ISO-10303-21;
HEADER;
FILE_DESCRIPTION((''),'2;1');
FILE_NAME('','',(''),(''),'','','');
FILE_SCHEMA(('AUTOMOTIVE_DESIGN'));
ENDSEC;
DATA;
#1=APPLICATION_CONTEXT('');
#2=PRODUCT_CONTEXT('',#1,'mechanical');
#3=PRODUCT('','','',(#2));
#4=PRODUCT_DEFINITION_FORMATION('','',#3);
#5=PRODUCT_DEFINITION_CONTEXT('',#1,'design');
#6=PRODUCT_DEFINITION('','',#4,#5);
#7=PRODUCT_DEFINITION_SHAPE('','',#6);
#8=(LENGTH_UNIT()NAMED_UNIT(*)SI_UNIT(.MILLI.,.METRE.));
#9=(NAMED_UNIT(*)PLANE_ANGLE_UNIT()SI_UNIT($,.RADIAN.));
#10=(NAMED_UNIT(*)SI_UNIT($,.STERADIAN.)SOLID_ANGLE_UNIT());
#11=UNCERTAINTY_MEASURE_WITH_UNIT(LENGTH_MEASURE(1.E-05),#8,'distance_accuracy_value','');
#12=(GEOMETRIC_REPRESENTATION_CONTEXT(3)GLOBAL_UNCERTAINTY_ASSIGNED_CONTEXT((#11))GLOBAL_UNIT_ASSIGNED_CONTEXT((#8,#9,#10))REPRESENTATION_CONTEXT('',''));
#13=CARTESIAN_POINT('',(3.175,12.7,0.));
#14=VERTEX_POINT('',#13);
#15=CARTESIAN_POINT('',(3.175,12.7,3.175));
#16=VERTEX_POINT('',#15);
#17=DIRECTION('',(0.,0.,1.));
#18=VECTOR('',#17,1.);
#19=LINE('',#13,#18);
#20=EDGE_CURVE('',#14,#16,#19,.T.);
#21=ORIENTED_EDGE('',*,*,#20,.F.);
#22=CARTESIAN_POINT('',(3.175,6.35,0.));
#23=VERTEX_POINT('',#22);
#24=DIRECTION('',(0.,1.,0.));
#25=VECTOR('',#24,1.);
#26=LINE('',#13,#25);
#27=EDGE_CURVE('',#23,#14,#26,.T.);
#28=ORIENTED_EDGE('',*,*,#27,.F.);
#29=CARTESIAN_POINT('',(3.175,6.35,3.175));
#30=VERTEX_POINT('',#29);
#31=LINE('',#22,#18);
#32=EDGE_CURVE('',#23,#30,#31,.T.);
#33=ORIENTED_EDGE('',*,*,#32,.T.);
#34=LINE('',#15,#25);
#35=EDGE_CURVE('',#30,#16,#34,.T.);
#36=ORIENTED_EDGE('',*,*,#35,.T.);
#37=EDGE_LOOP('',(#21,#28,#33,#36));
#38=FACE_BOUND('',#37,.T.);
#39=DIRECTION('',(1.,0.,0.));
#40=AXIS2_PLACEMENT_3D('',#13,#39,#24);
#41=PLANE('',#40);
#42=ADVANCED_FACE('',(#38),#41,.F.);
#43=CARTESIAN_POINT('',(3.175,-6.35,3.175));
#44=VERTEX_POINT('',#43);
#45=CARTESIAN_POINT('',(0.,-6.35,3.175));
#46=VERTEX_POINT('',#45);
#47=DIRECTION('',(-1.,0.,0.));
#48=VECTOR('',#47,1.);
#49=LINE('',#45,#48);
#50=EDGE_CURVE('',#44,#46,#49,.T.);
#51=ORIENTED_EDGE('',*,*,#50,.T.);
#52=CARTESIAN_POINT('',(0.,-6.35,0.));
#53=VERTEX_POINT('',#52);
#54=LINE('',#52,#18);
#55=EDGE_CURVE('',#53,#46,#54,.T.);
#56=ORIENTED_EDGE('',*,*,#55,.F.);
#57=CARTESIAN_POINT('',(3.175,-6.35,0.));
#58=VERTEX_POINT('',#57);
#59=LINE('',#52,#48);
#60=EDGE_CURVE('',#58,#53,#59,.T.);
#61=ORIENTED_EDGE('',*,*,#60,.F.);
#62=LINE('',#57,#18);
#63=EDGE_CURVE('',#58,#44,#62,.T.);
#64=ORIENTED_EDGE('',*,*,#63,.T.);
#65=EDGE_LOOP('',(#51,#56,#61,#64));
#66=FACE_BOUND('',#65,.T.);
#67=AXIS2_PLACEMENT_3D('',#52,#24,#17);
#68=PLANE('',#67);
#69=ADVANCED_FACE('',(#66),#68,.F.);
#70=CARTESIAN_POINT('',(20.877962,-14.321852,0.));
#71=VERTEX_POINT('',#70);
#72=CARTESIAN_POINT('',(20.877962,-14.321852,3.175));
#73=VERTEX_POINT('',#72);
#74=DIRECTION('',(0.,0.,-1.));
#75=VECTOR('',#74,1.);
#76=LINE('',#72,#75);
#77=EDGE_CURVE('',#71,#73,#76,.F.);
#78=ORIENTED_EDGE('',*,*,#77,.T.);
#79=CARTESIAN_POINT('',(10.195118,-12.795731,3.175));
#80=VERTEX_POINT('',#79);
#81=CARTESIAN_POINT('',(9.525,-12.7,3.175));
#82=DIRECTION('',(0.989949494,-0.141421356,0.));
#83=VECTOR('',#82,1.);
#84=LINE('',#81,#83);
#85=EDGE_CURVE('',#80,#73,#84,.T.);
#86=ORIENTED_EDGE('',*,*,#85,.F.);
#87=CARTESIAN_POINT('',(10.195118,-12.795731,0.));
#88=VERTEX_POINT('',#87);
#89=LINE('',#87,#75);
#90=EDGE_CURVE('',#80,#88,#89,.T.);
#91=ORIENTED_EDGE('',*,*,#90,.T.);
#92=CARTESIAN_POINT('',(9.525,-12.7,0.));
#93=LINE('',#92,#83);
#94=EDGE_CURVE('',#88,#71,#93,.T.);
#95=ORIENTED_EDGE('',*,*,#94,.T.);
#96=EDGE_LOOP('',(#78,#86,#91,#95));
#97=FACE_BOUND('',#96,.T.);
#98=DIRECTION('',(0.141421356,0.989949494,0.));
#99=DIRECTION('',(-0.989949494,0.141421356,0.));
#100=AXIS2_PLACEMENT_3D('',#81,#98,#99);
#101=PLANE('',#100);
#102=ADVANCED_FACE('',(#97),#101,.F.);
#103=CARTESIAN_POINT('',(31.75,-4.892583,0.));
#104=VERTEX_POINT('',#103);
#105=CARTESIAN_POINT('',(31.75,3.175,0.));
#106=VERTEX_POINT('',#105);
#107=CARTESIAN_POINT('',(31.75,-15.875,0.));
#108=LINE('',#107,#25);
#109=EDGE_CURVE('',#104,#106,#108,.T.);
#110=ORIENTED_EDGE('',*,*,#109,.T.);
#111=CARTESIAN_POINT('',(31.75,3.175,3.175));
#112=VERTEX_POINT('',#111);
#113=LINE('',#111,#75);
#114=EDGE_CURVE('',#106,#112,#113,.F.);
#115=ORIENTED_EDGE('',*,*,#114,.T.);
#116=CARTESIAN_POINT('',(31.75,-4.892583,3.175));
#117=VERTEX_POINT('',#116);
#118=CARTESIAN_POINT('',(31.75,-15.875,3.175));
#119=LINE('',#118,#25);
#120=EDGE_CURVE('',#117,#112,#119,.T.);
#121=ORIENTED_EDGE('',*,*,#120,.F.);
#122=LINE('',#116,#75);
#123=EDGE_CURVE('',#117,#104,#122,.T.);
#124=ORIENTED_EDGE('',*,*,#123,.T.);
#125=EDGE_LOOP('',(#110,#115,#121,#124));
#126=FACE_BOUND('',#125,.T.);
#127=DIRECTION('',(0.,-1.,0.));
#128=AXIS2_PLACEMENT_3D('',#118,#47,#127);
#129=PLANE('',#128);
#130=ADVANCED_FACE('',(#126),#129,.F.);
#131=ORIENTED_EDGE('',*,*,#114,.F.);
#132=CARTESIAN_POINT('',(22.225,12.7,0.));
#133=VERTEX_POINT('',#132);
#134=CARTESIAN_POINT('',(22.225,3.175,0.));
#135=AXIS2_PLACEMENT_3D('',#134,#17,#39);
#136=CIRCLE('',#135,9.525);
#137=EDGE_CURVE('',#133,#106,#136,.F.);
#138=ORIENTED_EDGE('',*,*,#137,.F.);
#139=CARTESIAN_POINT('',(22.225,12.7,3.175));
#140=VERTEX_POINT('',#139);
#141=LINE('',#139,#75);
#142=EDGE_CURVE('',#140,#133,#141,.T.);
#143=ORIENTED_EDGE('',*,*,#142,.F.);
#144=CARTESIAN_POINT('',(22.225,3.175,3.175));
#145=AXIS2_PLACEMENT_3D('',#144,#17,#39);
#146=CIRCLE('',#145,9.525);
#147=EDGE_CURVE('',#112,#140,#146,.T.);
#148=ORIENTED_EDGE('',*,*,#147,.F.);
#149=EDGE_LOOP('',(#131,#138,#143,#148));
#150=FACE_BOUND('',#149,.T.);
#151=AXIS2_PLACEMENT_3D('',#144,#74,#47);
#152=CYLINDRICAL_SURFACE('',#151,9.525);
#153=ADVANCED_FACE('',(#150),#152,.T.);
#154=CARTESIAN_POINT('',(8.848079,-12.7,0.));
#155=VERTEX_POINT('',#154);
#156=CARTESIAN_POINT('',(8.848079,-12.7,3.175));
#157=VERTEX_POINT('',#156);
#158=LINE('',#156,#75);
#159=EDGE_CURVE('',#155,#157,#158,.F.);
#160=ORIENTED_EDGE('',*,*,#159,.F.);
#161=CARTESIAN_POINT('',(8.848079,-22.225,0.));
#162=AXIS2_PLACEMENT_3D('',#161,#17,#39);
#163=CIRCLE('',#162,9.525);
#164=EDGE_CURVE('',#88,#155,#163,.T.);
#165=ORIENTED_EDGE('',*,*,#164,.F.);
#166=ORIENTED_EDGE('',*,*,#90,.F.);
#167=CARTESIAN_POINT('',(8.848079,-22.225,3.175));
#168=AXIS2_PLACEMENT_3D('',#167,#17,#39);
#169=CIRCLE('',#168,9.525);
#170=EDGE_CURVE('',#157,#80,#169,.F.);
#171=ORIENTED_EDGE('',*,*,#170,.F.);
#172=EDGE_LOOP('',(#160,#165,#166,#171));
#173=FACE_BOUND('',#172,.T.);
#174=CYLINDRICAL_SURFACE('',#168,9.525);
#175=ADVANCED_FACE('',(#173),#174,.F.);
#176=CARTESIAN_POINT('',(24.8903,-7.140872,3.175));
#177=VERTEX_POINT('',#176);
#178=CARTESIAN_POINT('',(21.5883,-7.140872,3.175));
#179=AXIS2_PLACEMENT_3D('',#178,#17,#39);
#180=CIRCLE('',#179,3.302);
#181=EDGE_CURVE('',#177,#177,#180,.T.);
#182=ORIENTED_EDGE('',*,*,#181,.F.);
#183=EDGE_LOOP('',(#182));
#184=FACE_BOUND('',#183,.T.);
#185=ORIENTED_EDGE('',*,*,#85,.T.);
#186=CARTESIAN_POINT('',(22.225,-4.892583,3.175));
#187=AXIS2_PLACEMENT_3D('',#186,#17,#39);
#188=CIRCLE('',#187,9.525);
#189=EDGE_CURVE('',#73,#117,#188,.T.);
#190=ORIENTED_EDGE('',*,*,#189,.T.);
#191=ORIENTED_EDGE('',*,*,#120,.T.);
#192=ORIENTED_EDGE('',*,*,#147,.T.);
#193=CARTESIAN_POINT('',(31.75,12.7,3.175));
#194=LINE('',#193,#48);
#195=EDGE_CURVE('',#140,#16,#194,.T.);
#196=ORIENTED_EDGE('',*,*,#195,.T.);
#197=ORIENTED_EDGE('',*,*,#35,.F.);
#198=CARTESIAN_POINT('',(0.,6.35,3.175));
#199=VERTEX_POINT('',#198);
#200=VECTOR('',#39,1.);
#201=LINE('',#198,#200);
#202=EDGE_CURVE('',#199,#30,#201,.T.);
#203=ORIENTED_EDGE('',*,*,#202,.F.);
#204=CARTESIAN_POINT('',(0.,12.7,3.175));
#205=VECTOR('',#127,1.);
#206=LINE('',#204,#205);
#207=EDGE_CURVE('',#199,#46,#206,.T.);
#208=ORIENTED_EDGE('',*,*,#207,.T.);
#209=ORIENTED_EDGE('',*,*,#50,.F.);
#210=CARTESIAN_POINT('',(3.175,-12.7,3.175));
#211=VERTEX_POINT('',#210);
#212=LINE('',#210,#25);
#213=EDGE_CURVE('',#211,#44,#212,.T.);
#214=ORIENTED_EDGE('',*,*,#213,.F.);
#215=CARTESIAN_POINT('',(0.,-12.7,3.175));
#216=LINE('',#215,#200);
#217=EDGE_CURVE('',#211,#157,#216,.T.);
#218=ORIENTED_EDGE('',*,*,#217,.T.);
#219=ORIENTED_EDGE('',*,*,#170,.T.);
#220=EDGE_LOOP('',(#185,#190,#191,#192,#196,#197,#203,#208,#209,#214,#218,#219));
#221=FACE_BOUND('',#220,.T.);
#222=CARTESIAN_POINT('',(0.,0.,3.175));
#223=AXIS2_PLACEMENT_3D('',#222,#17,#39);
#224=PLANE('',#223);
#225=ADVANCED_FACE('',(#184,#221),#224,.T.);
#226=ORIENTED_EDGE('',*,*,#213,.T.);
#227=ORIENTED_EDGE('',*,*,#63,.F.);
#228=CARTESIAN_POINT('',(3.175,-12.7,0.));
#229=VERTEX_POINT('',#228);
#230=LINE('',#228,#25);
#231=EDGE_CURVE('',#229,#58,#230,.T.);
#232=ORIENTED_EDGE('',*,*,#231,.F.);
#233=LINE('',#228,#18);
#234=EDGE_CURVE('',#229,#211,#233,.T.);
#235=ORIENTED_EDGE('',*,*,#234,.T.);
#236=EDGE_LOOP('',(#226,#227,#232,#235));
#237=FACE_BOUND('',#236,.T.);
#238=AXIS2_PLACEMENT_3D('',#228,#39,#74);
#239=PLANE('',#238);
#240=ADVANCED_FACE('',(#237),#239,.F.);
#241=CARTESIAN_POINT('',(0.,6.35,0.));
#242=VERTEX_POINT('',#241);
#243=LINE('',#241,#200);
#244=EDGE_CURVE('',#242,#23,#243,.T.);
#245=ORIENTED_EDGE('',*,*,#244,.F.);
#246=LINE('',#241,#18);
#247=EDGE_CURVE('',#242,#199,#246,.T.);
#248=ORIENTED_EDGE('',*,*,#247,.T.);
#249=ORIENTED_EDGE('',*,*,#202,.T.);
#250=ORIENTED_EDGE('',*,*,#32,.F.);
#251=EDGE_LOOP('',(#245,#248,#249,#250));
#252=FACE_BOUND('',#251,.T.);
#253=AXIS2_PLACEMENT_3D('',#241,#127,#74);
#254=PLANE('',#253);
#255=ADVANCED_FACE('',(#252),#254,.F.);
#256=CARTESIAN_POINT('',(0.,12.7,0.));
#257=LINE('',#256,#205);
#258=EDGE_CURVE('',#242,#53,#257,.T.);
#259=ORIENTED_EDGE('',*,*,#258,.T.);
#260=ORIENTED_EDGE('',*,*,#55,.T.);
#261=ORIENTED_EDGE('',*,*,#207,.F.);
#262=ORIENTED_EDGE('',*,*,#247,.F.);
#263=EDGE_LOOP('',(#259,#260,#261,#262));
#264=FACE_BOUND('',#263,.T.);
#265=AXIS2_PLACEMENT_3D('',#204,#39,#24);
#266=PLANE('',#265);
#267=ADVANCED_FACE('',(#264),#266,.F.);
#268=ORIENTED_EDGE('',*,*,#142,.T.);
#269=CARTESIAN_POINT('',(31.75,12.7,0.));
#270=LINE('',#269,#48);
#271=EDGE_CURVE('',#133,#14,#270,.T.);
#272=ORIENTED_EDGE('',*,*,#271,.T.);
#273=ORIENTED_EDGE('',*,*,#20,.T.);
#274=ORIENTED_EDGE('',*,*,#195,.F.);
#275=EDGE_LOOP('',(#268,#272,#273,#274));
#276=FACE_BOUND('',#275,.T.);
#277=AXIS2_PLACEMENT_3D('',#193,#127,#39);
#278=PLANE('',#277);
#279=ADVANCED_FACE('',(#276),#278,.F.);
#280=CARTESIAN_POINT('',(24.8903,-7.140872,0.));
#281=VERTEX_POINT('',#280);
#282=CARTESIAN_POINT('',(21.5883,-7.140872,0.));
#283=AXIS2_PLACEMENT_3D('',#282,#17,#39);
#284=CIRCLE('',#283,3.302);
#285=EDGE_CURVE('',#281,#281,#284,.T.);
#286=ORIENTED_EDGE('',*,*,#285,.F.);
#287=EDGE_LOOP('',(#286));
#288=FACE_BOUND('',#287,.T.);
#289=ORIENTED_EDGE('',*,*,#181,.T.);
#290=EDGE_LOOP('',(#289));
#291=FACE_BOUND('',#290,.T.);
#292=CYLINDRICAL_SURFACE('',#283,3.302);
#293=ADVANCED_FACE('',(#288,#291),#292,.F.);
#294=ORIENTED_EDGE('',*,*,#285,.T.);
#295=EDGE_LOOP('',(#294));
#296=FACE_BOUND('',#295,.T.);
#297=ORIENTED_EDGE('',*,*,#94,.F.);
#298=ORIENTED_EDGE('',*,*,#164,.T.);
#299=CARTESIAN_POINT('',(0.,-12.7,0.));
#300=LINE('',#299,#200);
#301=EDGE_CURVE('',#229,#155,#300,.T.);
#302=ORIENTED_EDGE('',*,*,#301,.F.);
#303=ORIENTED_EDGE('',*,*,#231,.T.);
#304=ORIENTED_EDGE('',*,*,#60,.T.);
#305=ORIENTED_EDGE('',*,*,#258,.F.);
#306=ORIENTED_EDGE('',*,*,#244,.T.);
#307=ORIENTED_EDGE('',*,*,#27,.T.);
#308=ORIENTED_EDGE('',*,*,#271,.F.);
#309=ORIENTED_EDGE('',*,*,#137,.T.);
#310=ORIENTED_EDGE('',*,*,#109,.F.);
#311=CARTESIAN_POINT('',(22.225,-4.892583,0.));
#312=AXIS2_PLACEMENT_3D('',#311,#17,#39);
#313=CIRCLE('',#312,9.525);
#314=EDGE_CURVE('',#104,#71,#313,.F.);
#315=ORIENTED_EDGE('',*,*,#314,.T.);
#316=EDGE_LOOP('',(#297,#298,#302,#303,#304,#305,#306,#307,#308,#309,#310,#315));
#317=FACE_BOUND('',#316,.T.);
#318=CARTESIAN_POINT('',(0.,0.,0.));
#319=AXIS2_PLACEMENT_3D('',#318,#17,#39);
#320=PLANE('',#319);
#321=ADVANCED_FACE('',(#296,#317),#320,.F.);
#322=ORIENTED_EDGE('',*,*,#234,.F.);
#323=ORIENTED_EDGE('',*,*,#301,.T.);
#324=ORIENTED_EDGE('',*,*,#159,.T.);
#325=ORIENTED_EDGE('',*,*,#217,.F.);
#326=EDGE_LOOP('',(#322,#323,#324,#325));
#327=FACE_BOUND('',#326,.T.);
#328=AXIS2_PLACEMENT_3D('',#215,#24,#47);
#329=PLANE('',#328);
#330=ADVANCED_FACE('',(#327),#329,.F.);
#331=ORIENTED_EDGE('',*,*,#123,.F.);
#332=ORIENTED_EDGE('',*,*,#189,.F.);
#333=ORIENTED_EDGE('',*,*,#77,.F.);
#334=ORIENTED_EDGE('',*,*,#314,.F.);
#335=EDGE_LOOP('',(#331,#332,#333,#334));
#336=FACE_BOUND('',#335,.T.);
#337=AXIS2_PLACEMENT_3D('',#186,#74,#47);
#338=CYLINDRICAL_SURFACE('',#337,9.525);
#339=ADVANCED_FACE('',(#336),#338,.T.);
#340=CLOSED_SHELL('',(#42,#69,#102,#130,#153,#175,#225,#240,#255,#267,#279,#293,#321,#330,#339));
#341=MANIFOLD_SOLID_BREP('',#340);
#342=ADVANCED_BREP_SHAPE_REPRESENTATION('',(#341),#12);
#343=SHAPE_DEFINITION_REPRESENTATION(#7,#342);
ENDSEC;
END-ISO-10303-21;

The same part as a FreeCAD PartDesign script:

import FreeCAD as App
import Part
import Sketcher
Q = App.Units.Quantity


def edges_at(feature, points):
    """Names of the edges that pass closest to the given points."""
    edges = feature.Shape.Edges
    near = lambda p: min(range(len(edges)), key=lambda i: edges[i].distToShape(Part.Vertex(*p))[0])
    return sorted({f"Edge{near(p) + 1}" for p in points})

doc = App.newDocument("Part")
body = doc.addObject("PartDesign::Body", "Body")

sketch1 = body.newObject("Sketcher::SketchObject", "Sketch")
sketch1.AttachmentSupport = (doc.getObject("XY_Plane"), [""])
sketch1.MapMode = "FlatFace"
sketch1.addGeometry([
    Part.LineSegment(App.Vector(0, 12.7, 0), App.Vector(0, -12.7, 0)),
    Part.LineSegment(App.Vector(0, -12.7, 0), App.Vector(9.525, -12.7, 0)),
    Part.LineSegment(App.Vector(9.525, -12.7, 0), App.Vector(31.75, -15.875, 0)),
    Part.LineSegment(App.Vector(31.75, -15.875, 0), App.Vector(31.75, 12.7, 0)),
    Part.LineSegment(App.Vector(31.75, 12.7, 0), App.Vector(0, 12.7, 0)),
], False)
sketch1.addConstraint([
    Sketcher.Constraint("Coincident", 0, 2, 1, 1),
    Sketcher.Constraint("Coincident", 1, 2, 2, 1),
    Sketcher.Constraint("Coincident", 2, 2, 3, 1),
    Sketcher.Constraint("Coincident", 3, 2, 4, 1),
    Sketcher.Constraint("Coincident", 4, 2, 0, 1),
    Sketcher.Constraint("Vertical", 0),
    Sketcher.Constraint("Horizontal", 1),
    Sketcher.Constraint("Vertical", 3),
    Sketcher.Constraint("Horizontal", 4),
    Sketcher.Constraint("Symmetric", 0, 2, 4, 2, -1, 1),
    Sketcher.Constraint("DistanceY", 0, 2, 0, 1, Q("1 in")),
    Sketcher.Constraint("DistanceX", 4, 2, 4, 1, Q("1.25 in")),
    Sketcher.Constraint("DistanceX", 1, 1, 1, 2, Q("0.375 in")),
    Sketcher.Constraint("DistanceY", 3, 1, 3, 2, Q("1.125 in")),
])
pad1 = body.newObject("PartDesign::Pad", "Pad")
pad1.Profile = sketch1
pad1.Length = Q("0.125 in")

sketch2 = body.newObject("Sketcher::SketchObject", "Sketch001")
sketch2.AttachmentSupport = (doc.getObject("XY_Plane"), [""])
sketch2.MapMode = "FlatFace"
sketch2.AttachmentOffset = App.Placement(App.Vector(0, 0, 0.125 * 25.4), App.Rotation())
sketch2.addGeometry(Part.Circle(App.Vector(21.5883, -7.140872, 0), App.Vector(0, 0, 1), 3.302), False)
sketch2.addConstraint([
    Sketcher.Constraint("Diameter", 0, Q("0.26 in")),
    Sketcher.Constraint("DistanceX", -1, 1, 0, 3, Q("21.5883 mm")),
    Sketcher.Constraint("DistanceY", 0, 3, -1, 1, Q("7.140872 mm")),
])
pocket1 = body.newObject("PartDesign::Pocket", "Pocket")
pocket1.Profile = sketch2
pocket1.Length = Q("0.125 in")
doc.recompute()

fillet = body.newObject("PartDesign::Fillet", "Fillet")
fillet.Base = (pocket1, edges_at(pocket1, [(31.75, 12.7, 1.587), (31.75, -15.875, 1.587), (9.525, -12.7, 1.587)]))
fillet.Radius = Q("0.375 in")

sketch3 = body.newObject("Sketcher::SketchObject", "Sketch002")
sketch3.AttachmentSupport = (doc.getObject("XY_Plane"), [""])
sketch3.MapMode = "FlatFace"
sketch3.AttachmentOffset = App.Placement(App.Vector(0, 0, 0.125 * 25.4), App.Rotation())
sketch3.addGeometry([
    Part.LineSegment(App.Vector(0, -6.35, 0), App.Vector(0, -12.7, 0)),
    Part.LineSegment(App.Vector(0, -12.7, 0), App.Vector(3.175, -12.7, 0)),
    Part.LineSegment(App.Vector(3.175, -12.7, 0), App.Vector(3.175, -6.35, 0)),
    Part.LineSegment(App.Vector(3.175, -6.35, 0), App.Vector(0, -6.35, 0)),
    Part.LineSegment(App.Vector(0, 12.7, 0), App.Vector(0, 6.35, 0)),
    Part.LineSegment(App.Vector(0, 6.35, 0), App.Vector(3.175, 6.35, 0)),
    Part.LineSegment(App.Vector(3.175, 6.35, 0), App.Vector(3.175, 12.7, 0)),
    Part.LineSegment(App.Vector(3.175, 12.7, 0), App.Vector(0, 12.7, 0)),
], False)
sketch3.addConstraint([
    Sketcher.Constraint("Coincident", 0, 2, 1, 1),
    Sketcher.Constraint("Coincident", 1, 2, 2, 1),
    Sketcher.Constraint("Coincident", 2, 2, 3, 1),
    Sketcher.Constraint("Coincident", 3, 2, 0, 1),
    Sketcher.Constraint("Coincident", 4, 2, 5, 1),
    Sketcher.Constraint("Coincident", 5, 2, 6, 1),
    Sketcher.Constraint("Coincident", 6, 2, 7, 1),
    Sketcher.Constraint("Coincident", 7, 2, 4, 1),
    Sketcher.Constraint("Vertical", 0),
    Sketcher.Constraint("Horizontal", 1),
    Sketcher.Constraint("Vertical", 2),
    Sketcher.Constraint("Horizontal", 3),
    Sketcher.Constraint("Vertical", 4),
    Sketcher.Constraint("Horizontal", 5),
    Sketcher.Constraint("Vertical", 6),
    Sketcher.Constraint("Horizontal", 7),
    Sketcher.Constraint("Symmetric", 3, 2, 4, 2, -1, 1),
    Sketcher.Constraint("Symmetric", 1, 2, 6, 2, -1),
    Sketcher.Constraint("PointOnObject", 0, 2, -2),
    Sketcher.Constraint("DistanceY", 1, 2, 6, 2, Q("1 in")),
    Sketcher.Constraint("DistanceY", 0, 2, 0, 1, Q("0.25 in")),
    Sketcher.Constraint("DistanceX", 1, 1, 1, 2, Q("0.125 in")),
])
pocket2 = body.newObject("PartDesign::Pocket", "Pocket001")
pocket2.Profile = sketch3
pocket2.Length = Q("0.125 in")

doc.recompute()
